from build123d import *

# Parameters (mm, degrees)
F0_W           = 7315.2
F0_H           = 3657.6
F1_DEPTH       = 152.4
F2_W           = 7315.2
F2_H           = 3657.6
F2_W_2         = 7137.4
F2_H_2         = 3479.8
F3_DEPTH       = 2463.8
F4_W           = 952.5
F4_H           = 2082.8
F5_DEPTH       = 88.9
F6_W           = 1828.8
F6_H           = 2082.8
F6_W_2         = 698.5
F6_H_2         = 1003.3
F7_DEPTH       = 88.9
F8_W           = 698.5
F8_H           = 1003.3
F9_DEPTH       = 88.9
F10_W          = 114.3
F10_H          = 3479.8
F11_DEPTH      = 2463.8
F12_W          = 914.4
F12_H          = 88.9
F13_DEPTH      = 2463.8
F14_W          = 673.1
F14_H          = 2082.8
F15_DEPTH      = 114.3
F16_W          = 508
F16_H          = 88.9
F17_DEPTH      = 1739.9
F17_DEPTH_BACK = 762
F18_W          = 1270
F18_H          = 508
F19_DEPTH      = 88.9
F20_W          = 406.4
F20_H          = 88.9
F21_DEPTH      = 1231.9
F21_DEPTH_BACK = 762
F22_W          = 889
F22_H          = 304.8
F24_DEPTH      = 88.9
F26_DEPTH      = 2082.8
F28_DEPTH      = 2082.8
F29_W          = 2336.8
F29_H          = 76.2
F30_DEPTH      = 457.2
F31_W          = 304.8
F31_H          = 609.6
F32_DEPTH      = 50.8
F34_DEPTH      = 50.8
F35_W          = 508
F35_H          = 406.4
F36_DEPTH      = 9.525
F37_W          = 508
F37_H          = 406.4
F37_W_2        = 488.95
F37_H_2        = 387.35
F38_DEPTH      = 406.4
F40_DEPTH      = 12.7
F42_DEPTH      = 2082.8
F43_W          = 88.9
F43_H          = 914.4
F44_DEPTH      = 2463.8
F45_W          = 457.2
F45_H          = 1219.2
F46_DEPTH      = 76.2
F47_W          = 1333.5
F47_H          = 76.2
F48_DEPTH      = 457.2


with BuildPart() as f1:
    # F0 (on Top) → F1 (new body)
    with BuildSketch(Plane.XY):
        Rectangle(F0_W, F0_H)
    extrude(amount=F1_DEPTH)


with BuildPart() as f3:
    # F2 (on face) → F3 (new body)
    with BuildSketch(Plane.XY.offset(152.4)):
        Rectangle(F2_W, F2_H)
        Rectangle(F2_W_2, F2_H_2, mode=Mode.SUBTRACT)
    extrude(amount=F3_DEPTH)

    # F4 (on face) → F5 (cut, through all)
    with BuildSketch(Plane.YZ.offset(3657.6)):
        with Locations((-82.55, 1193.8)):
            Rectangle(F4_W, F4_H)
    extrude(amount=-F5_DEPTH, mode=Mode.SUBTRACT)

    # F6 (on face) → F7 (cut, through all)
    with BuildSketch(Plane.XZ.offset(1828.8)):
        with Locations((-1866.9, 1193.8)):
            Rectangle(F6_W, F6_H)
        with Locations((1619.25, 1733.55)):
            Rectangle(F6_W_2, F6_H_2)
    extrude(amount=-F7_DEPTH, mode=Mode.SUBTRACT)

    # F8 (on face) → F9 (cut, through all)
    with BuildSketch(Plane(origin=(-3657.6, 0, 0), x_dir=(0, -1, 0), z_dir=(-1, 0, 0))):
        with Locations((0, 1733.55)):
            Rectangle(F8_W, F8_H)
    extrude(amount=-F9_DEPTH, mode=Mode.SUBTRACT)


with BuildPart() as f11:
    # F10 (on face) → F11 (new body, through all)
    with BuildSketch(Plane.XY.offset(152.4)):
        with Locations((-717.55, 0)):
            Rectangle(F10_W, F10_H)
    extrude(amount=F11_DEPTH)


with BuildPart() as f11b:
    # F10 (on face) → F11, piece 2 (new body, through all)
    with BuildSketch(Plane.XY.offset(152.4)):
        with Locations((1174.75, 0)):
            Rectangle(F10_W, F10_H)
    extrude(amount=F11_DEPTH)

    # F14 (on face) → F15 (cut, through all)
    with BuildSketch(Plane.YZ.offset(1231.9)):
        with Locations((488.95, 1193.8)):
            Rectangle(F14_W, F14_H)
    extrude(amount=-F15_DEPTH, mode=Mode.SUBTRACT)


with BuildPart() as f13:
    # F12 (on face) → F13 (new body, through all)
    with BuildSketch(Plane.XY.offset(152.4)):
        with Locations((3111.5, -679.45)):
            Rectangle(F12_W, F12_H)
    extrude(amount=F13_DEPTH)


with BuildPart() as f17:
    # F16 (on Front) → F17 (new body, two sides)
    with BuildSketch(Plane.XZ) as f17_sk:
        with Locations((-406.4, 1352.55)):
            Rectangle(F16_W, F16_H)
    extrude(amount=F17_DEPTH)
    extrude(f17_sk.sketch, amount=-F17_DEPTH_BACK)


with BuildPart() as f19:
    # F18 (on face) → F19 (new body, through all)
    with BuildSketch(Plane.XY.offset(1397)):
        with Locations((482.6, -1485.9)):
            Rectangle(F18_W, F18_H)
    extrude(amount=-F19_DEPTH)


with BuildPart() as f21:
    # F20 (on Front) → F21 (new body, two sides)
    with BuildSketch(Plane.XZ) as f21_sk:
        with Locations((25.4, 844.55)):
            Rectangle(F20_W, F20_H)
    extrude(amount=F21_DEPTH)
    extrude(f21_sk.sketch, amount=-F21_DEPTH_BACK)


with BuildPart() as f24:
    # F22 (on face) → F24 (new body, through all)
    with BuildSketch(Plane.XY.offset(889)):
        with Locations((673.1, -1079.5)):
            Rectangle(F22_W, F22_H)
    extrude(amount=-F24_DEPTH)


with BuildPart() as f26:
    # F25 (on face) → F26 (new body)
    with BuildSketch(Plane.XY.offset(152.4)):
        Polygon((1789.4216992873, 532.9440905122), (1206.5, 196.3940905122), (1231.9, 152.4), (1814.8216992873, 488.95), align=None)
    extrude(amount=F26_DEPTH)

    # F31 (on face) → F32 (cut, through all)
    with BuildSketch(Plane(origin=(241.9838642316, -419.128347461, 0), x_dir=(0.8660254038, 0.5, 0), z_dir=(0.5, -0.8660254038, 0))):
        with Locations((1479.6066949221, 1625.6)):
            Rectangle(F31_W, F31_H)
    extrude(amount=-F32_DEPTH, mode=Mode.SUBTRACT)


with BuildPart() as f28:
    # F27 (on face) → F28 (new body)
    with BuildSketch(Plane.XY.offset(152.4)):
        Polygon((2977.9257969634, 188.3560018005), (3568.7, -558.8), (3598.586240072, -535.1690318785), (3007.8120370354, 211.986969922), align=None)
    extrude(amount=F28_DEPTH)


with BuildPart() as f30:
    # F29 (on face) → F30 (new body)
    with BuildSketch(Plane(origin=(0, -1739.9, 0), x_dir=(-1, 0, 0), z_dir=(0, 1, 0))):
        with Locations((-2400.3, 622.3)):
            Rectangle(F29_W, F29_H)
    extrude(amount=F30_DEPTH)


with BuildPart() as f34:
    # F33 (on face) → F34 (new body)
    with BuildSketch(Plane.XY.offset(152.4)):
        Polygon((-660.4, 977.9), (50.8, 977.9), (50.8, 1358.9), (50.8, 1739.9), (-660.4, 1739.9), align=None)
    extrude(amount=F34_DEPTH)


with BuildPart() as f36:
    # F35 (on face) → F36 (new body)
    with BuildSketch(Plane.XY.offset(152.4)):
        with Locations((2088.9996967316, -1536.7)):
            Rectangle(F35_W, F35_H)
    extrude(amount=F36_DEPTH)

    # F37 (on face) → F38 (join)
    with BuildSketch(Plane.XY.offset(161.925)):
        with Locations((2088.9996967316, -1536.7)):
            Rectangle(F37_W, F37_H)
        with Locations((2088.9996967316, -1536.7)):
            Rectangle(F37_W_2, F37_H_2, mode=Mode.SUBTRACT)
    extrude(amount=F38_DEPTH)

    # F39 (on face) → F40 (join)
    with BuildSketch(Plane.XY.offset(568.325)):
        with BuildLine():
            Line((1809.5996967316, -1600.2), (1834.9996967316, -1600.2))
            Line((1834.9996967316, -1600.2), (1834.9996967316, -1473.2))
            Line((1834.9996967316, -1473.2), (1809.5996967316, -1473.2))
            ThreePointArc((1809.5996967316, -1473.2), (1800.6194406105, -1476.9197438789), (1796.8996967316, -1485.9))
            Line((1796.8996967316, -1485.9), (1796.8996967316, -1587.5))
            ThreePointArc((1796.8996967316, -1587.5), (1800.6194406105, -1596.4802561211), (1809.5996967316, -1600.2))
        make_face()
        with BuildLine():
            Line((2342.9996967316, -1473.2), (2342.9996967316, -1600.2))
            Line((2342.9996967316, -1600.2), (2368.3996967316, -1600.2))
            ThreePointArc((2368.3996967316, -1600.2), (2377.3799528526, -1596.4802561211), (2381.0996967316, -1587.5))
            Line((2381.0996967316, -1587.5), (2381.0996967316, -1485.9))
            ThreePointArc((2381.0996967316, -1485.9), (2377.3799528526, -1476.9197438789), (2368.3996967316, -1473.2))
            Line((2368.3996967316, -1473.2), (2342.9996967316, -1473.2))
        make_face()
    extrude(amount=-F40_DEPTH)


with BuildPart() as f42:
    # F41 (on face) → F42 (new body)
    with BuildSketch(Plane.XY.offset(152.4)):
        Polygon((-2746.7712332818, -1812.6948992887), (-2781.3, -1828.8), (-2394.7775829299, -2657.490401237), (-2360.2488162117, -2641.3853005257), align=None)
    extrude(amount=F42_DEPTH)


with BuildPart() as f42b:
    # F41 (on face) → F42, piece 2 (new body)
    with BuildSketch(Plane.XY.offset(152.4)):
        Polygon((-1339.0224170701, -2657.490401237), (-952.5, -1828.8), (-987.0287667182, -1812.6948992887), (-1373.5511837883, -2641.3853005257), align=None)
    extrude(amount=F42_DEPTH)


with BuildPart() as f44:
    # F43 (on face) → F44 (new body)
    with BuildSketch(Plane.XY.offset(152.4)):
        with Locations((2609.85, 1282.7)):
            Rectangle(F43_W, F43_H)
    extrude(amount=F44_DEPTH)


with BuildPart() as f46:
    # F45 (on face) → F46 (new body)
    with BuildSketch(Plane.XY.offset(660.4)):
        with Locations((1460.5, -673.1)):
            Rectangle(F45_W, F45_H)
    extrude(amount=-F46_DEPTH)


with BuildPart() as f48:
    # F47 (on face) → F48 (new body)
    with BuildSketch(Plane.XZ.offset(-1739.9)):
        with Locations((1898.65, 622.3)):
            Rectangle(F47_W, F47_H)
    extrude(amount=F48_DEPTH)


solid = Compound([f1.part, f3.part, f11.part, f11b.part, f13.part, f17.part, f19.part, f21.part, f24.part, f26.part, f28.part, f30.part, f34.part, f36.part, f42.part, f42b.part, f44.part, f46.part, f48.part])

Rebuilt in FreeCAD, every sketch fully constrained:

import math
import FreeCAD as App
import Part
import Sketcher

V = App.Vector
Q = App.Units.Quantity


def add_polygon(sketch, points):
    """Adds a closed chain of lines whose ends are joined by coincident constraints."""
    first, n = sketch.GeometryCount, len(points)
    for a, b in zip(points, points[1:] + points[:1]):
        sketch.addGeometry(Part.LineSegment(App.Vector(*a, 0), App.Vector(*b, 0)), False)
    for i in range(n):
        sketch.addConstraint(Sketcher.Constraint("Coincident", first + i, 2, first + (i + 1) % n, 1))

doc = App.newDocument("Part")
body = doc.addObject("PartDesign::Body", "Body")

sketch1 = body.newObject("Sketcher::SketchObject", "Sketch")
sketch1.AttachmentSupport = (doc.getObject("XY_Plane"), [""])
sketch1.MapMode = "FlatFace"
add_polygon(sketch1, [(-3658, 1829), (-3658, -1829), (3658, -1829), (3658, 1829)])
sketch1.addConstraint(Sketcher.Constraint("Vertical", 0))
sketch1.addConstraint(Sketcher.Constraint("Horizontal", 1))
sketch1.addConstraint(Sketcher.Constraint("Vertical", 2))
sketch1.addConstraint(Sketcher.Constraint("Horizontal", 3))
sketch1.addConstraint(Sketcher.Constraint("Symmetric", 0, 2, 2, 2, -1, 1))
sketch1.addConstraint(Sketcher.Constraint("DistanceX", 1, 1, 1, 2, Q("288 in")))
sketch1.addConstraint(Sketcher.Constraint("DistanceY", 0, 2, 0, 1, Q("144 in")))
pad1 = body.newObject("PartDesign::Pad", "Pad")
pad1.Profile = sketch1
pad1.Length = Q("6 in")
body2 = doc.addObject("PartDesign::Body", "Body001")

sketch2 = body2.newObject("Sketcher::SketchObject", "Sketch001")
sketch2.AttachmentSupport = (doc.getObject("XY_Plane001"), [""])
sketch2.MapMode = "FlatFace"
sketch2.AttachmentOffset = App.Placement(V(0, 0, 6 * 25.4), App.Rotation())
add_polygon(sketch2, [(-3658, 1829), (-3658, -1829), (3658, -1829), (3658, 1829)])
add_polygon(sketch2, [(3569, -1740), (-3569, -1740), (-3569, 1740), (3569, 1740)])
sketch2.addConstraint(Sketcher.Constraint("Vertical", 0))
sketch2.addConstraint(Sketcher.Constraint("Horizontal", 1))
sketch2.addConstraint(Sketcher.Constraint("Vertical", 2))
sketch2.addConstraint(Sketcher.Constraint("Horizontal", 3))
sketch2.addConstraint(Sketcher.Constraint("Horizontal", 4))
sketch2.addConstraint(Sketcher.Constraint("Vertical", 5))
sketch2.addConstraint(Sketcher.Constraint("Horizontal", 6))
sketch2.addConstraint(Sketcher.Constraint("Vertical", 7))
sketch2.addConstraint(Sketcher.Constraint("Symmetric", 0, 2, 2, 2, -1, 1))
sketch2.addConstraint(Sketcher.Constraint("Symmetric", 4, 2, 6, 2, -1, 1))
sketch2.addConstraint(Sketcher.Constraint("DistanceX", 1, 1, 1, 2, Q("288 in")))
sketch2.addConstraint(Sketcher.Constraint("DistanceX", 4, 2, 4, 1, Q("281 in")))
sketch2.addConstraint(Sketcher.Constraint("DistanceY", 0, 2, 0, 1, Q("144 in")))
sketch2.addConstraint(Sketcher.Constraint("DistanceY", 5, 1, 5, 2, Q("137 in")))
pad2 = body2.newObject("PartDesign::Pad", "Pad001")
pad2.Profile = sketch2
pad2.Length = Q("97 in")

sketch3 = body2.newObject("Sketcher::SketchObject", "Sketch002")
sketch3.AttachmentSupport = (doc.getObject("YZ_Plane001"), [""])
sketch3.MapMode = "FlatFace"
sketch3.AttachmentOffset = App.Placement(V(0, 0, 144 * 25.4), App.Rotation())
add_polygon(sketch3, [(-559, 2235), (-559, 152), (394, 152), (394, 2235)])
sketch3.addConstraint(Sketcher.Constraint("Vertical", 0))
sketch3.addConstraint(Sketcher.Constraint("Horizontal", 1))
sketch3.addConstraint(Sketcher.Constraint("Vertical", 2))
sketch3.addConstraint(Sketcher.Constraint("Horizontal", 3))
sketch3.addConstraint(Sketcher.Constraint("DistanceY", 0, 2, 0, 1, Q("82 in")))
sketch3.addConstraint(Sketcher.Constraint("DistanceX", 1, 1, 1, 2, Q("37.5 in")))
sketch3.addConstraint(Sketcher.Constraint("DistanceX", 0, 2, -1, 1, Q("22 in")))
sketch3.addConstraint(Sketcher.Constraint("DistanceY", -1, 1, 0, 2, Q("6 in")))
pocket1 = body2.newObject("PartDesign::Pocket", "Pocket")
pocket1.Profile = sketch3
pocket1.Length = Q("3.5 in")

sketch4 = body2.newObject("Sketcher::SketchObject", "Sketch003")
sketch4.AttachmentSupport = (doc.getObject("XZ_Plane001"), [""])
sketch4.MapMode = "FlatFace"
sketch4.AttachmentOffset = App.Placement(V(0, 0, 72 * 25.4), App.Rotation())
add_polygon(sketch4, [(-2781, 2235), (-2781, 152), (-952, 152), (-952, 2235)])
add_polygon(sketch4, [(1270, 2235), (1270, 1232), (1968, 1232), (1968, 2235)])
sketch4.addConstraint(Sketcher.Constraint("Vertical", 0))
sketch4.addConstraint(Sketcher.Constraint("Horizontal", 1))
sketch4.addConstraint(Sketcher.Constraint("Vertical", 2))
sketch4.addConstraint(Sketcher.Constraint("Horizontal", 3))
sketch4.addConstraint(Sketcher.Constraint("Vertical", 4))
sketch4.addConstraint(Sketcher.Constraint("Horizontal", 5))
sketch4.addConstraint(Sketcher.Constraint("Vertical", 6))
sketch4.addConstraint(Sketcher.Constraint("Horizontal", 7))
sketch4.addConstraint(Sketcher.Constraint("Horizontal", 3, 2, 6, 2))
sketch4.addConstraint(Sketcher.Constraint("DistanceX", 1, 1, 1, 2, Q("72 in")))
sketch4.addConstraint(Sketcher.Constraint("DistanceY", 0, 2, 0, 1, Q("82 in")))
sketch4.addConstraint(Sketcher.Constraint("DistanceX", 5, 1, 5, 2, Q("27.5 in")))
sketch4.addConstraint(Sketcher.Constraint("DistanceY", 4, 2, 4, 1, Q("39.5 in")))
sketch4.addConstraint(Sketcher.Constraint("DistanceY", -1, 1, 0, 2, Q("6 in")))
sketch4.addConstraint(Sketcher.Constraint("DistanceX", -1, 1, 4, 2, Q("50 in")))
sketch4.addConstraint(Sketcher.Constraint("DistanceX", 2, 2, 5, 2, Q("115 in")))
pocket2 = body2.newObject("PartDesign::Pocket", "Pocket001")
pocket2.Profile = sketch4
pocket2.Length = Q("3.5 in")

sketch5 = body2.newObject("Sketcher::SketchObject", "Sketch004")
sketch5.AttachmentSupport = (doc.getObject("YZ_Plane001"), [""])
sketch5.MapMode = "FlatFace"
sketch5.AttachmentOffset = App.Placement(V(0, 0, -144 * 25.4), App.Rotation())
add_polygon(sketch5, [(349, 2235), (349, 1232), (-349, 1232), (-349, 2235)])
sketch5.addConstraint(Sketcher.Constraint("Vertical", 0))
sketch5.addConstraint(Sketcher.Constraint("Horizontal", 1))
sketch5.addConstraint(Sketcher.Constraint("Vertical", 2))
sketch5.addConstraint(Sketcher.Constraint("Horizontal", 3))
sketch5.addConstraint(Sketcher.Constraint("DistanceX", 1, 2, 1, 1, Q("27.5 in")))
sketch5.addConstraint(Sketcher.Constraint("DistanceY", 0, 2, 0, 1, Q("39.5 in")))
sketch5.addConstraint(Sketcher.Constraint("DistanceY", -1, 1, 2, 2, Q("88 in")))
sketch5.addConstraint(Sketcher.Constraint("DistanceX", -1, 1, 0, 2, Q("13.75 in")))
pocket3 = body2.newObject("PartDesign::Pocket", "Pocket002")
pocket3.Profile = sketch5
pocket3.Type = "ThroughAll"
pocket3.Reversed = True
body3 = doc.addObject("PartDesign::Body", "Body002")

sketch6 = body3.newObject("Sketcher::SketchObject", "Sketch005")
sketch6.AttachmentSupport = (doc.getObject("XY_Plane002"), [""])
sketch6.MapMode = "FlatFace"
sketch6.AttachmentOffset = App.Placement(V(0, 0, 6 * 25.4), App.Rotation())
add_polygon(sketch6, [(-775, 1740), (-775, -1740), (-660, -1740), (-660, 1740)])
sketch6.addConstraint(Sketcher.Constraint("Vertical", 0))
sketch6.addConstraint(Sketcher.Constraint("Horizontal", 1))
sketch6.addConstraint(Sketcher.Constraint("Vertical", 2))
sketch6.addConstraint(Sketcher.Constraint("Horizontal", 3))
sketch6.addConstraint(Sketcher.Constraint("DistanceY", 0, 2, 0, 1, Q("137 in")))
sketch6.addConstraint(Sketcher.Constraint("DistanceX", 1, 1, 1, 2, Q("4.5 in")))
sketch6.addConstraint(Sketcher.Constraint("DistanceX", 1, 2, -1, 1, Q("26 in")))
sketch6.addConstraint(Sketcher.Constraint("DistanceY", 0, 2, -1, 1, Q("68.5 in")))
pad3 = body3.newObject("PartDesign::Pad", "Pad002")
pad3.Profile = sketch6
pad3.Length = Q("97 in")
body4 = doc.addObject("PartDesign::Body", "Body003")

sketch7 = body4.newObject("Sketcher::SketchObject", "Sketch006")
sketch7.AttachmentSupport = (doc.getObject("XY_Plane003"), [""])
sketch7.MapMode = "FlatFace"
sketch7.AttachmentOffset = App.Placement(V(0, 0, 6 * 25.4), App.Rotation())
add_polygon(sketch7, [(1118, 1740), (1118, -1740), (1232, -1740), (1232, 1740)])
sketch7.addConstraint(Sketcher.Constraint("Vertical", 0))
sketch7.addConstraint(Sketcher.Constraint("Horizontal", 1))
sketch7.addConstraint(Sketcher.Constraint("Vertical", 2))
sketch7.addConstraint(Sketcher.Constraint("Horizontal", 3))
sketch7.addConstraint(Sketcher.Constraint("DistanceY", 0, 2, 0, 1, Q("137 in")))
sketch7.addConstraint(Sketcher.Constraint("DistanceX", 1, 1, 1, 2, Q("4.5 in")))
sketch7.addConstraint(Sketcher.Constraint("DistanceX", -1, 1, 0, 2, Q("44 in")))
sketch7.addConstraint(Sketcher.Constraint("DistanceY", 0, 2, -1, 1, Q("68.5 in")))
pad4 = body4.newObject("PartDesign::Pad", "Pad003")
pad4.Profile = sketch7
pad4.Length = Q("97 in")

sketch8 = body4.newObject("Sketcher::SketchObject", "Sketch007")
sketch8.AttachmentSupport = (doc.getObject("YZ_Plane003"), [""])
sketch8.MapMode = "FlatFace"
sketch8.AttachmentOffset = App.Placement(V(0, 0, 48.5 * 25.4), App.Rotation())
add_polygon(sketch8, [(152, 2235), (152, 152), (826, 152), (826, 2235)])
sketch8.addConstraint(Sketcher.Constraint("Vertical", 0))
sketch8.addConstraint(Sketcher.Constraint("Horizontal", 1))
sketch8.addConstraint(Sketcher.Constraint("Vertical", 2))
sketch8.addConstraint(Sketcher.Constraint("Horizontal", 3))
sketch8.addConstraint(Sketcher.Constraint("DistanceY", 0, 2, 0, 1, Q("82 in")))
sketch8.addConstraint(Sketcher.Constraint("DistanceX", 1, 1, 1, 2, Q("26.5 in")))
sketch8.addConstraint(Sketcher.Constraint("DistanceX", -1, 1, 0, 2, Q("6 in")))
sketch8.addConstraint(Sketcher.Constraint("DistanceY", -1, 1, 0, 2, Q("6 in")))
pocket4 = body4.newObject("PartDesign::Pocket", "Pocket003")
pocket4.Profile = sketch8
pocket4.Type = "ThroughAll"
body5 = doc.addObject("PartDesign::Body", "Body004")

sketch9 = body5.newObject("Sketcher::SketchObject", "Sketch008")
sketch9.AttachmentSupport = (doc.getObject("XY_Plane004"), [""])
sketch9.MapMode = "FlatFace"
sketch9.AttachmentOffset = App.Placement(V(0, 0, 6 * 25.4), App.Rotation())
add_polygon(sketch9, [(2654, -635), (2654, -724), (3569, -724), (3569, -635)])
sketch9.addConstraint(Sketcher.Constraint("Vertical", 0))
sketch9.addConstraint(Sketcher.Constraint("Horizontal", 1))
sketch9.addConstraint(Sketcher.Constraint("Vertical", 2))
sketch9.addConstraint(Sketcher.Constraint("Horizontal", 3))
sketch9.addConstraint(Sketcher.Constraint("DistanceX", 1, 1, 1, 2, Q("36 in")))
sketch9.addConstraint(Sketcher.Constraint("DistanceY", 0, 2, 0, 1, Q("3.5 in")))
sketch9.addConstraint(Sketcher.Constraint("DistanceY", 2, 2, -1, 1, Q("25 in")))
sketch9.addConstraint(Sketcher.Constraint("DistanceX", -1, 1, 0, 2, Q("104.5 in")))
pad5 = body5.newObject("PartDesign::Pad", "Pad004")
pad5.Profile = sketch9
pad5.Length = Q("97 in")
body6 = doc.addObject("PartDesign::Body", "Body005")

sketch10 = body6.newObject("Sketcher::SketchObject", "Sketch009")
sketch10.AttachmentSupport = (doc.getObject("XZ_Plane005"), [""])
sketch10.MapMode = "FlatFace"
add_polygon(sketch10, [(-660, 1397), (-660, 1308), (-152, 1308), (-152, 1397)])
sketch10.addConstraint(Sketcher.Constraint("Vertical", 0))
sketch10.addConstraint(Sketcher.Constraint("Horizontal", 1))
sketch10.addConstraint(Sketcher.Constraint("Vertical", 2))
sketch10.addConstraint(Sketcher.Constraint("Horizontal", 3))
sketch10.addConstraint(Sketcher.Constraint("DistanceX", 1, 1, 1, 2, Q("20 in")))
sketch10.addConstraint(Sketcher.Constraint("DistanceY", 0, 2, 0, 1, Q("3.5 in")))
sketch10.addConstraint(Sketcher.Constraint("DistanceX", 0, 2, -1, 1, Q("26 in")))
sketch10.addConstraint(Sketcher.Constraint("DistanceY", -1, 1, 2, 2, Q("55 in")))
pad6 = body6.newObject("PartDesign::Pad", "Pad005")
pad6.Profile = sketch10
pad6.Type = "TwoLengths"
pad6.Length = Q("68.5 in")
pad6.Length2 = Q("30 in")
body7 = doc.addObject("PartDesign::Body", "Body006")

sketch11 = body7.newObject("Sketcher::SketchObject", "Sketch010")
sketch11.AttachmentSupport = (doc.getObject("XY_Plane006"), [""])
sketch11.MapMode = "FlatFace"
sketch11.AttachmentOffset = App.Placement(V(0, 0, 55 * 25.4), App.Rotation())
add_polygon(sketch11, [(-152, -1232), (-152, -1740), (1118, -1740), (1118, -1232)])
sketch11.addConstraint(Sketcher.Constraint("Vertical", 0))
sketch11.addConstraint(Sketcher.Constraint("Horizontal", 1))
sketch11.addConstraint(Sketcher.Constraint("Vertical", 2))
sketch11.addConstraint(Sketcher.Constraint("Horizontal", 3))
sketch11.addConstraint(Sketcher.Constraint("DistanceX", 1, 1, 1, 2, Q("50 in")))
sketch11.addConstraint(Sketcher.Constraint("DistanceY", 0, 2, 0, 1, Q("20 in")))
sketch11.addConstraint(Sketcher.Constraint("DistanceX", 0, 2, -1, 1, Q("6 in")))
sketch11.addConstraint(Sketcher.Constraint("DistanceY", 0, 2, -1, 1, Q("68.5 in")))
pad7 = body7.newObject("PartDesign::Pad", "Pad006")
pad7.Profile = sketch11
pad7.Length = Q("3.5 in")
pad7.Reversed = True
body8 = doc.addObject("PartDesign::Body", "Body007")

sketch12 = body8.newObject("Sketcher::SketchObject", "Sketch011")
sketch12.AttachmentSupport = (doc.getObject("XZ_Plane007"), [""])
sketch12.MapMode = "FlatFace"
add_polygon(sketch12, [(-178, 889), (-178, 800), (229, 800), (229, 889)])
sketch12.addConstraint(Sketcher.Constraint("Vertical", 0))
sketch12.addConstraint(Sketcher.Constraint("Horizontal", 1))
sketch12.addConstraint(Sketcher.Constraint("Vertical", 2))
sketch12.addConstraint(Sketcher.Constraint("Horizontal", 3))
sketch12.addConstraint(Sketcher.Constraint("DistanceX", 1, 1, 1, 2, Q("16 in")))
sketch12.addConstraint(Sketcher.Constraint("DistanceY", 0, 2, 0, 1, Q("3.5 in")))
sketch12.addConstraint(Sketcher.Constraint("DistanceX", 0, 2, -1, 1, Q("7 in")))
sketch12.addConstraint(Sketcher.Constraint("DistanceY", -1, 1, 2, 2, Q("35 in")))
pad8 = body8.newObject("PartDesign::Pad", "Pad007")
pad8.Profile = sketch12
pad8.Type = "TwoLengths"
pad8.Length = Q("48.5 in")
pad8.Length2 = Q("30 in")
body9 = doc.addObject("PartDesign::Body", "Body008")

sketch13 = body9.newObject("Sketcher::SketchObject", "Sketch012")
sketch13.AttachmentSupport = (doc.getObject("XY_Plane008"), [""])
sketch13.MapMode = "FlatFace"
sketch13.AttachmentOffset = App.Placement(V(0, 0, 35 * 25.4), App.Rotation())
add_polygon(sketch13, [(229, -927), (229, -1232), (1118, -1232), (1118, -927)])
sketch13.addConstraint(Sketcher.Constraint("Vertical", 0))
sketch13.addConstraint(Sketcher.Constraint("Horizontal", 1))
sketch13.addConstraint(Sketcher.Constraint("Vertical", 2))
sketch13.addConstraint(Sketcher.Constraint("Horizontal", 3))
sketch13.addConstraint(Sketcher.Constraint("DistanceX", 1, 1, 1, 2, Q("35 in")))
sketch13.addConstraint(Sketcher.Constraint("DistanceY", 0, 2, 0, 1, Q("12 in")))
sketch13.addConstraint(Sketcher.Constraint("DistanceX", -1, 1, 0, 2, Q("9 in")))
sketch13.addConstraint(Sketcher.Constraint("DistanceY", 0, 2, -1, 1, Q("48.5 in")))
pad9 = body9.newObject("PartDesign::Pad", "Pad008")
pad9.Profile = sketch13
pad9.Length = Q("3.5 in")
pad9.Reversed = True
body10 = doc.addObject("PartDesign::Body", "Body009")

sketch14 = body10.newObject("Sketcher::SketchObject", "Sketch013")
sketch14.AttachmentSupport = (doc.getObject("XY_Plane009"), [""])
sketch14.MapMode = "FlatFace"
sketch14.AttachmentOffset = App.Placement(V(0, 0, 6 * 25.4), App.Rotation())
add_polygon(sketch14, [(1789, 533), (1206, 196), (1232, 152), (1815, 489)])
sketch14.addConstraint(Sketcher.Constraint("Perpendicular", 0, 1))
sketch14.addConstraint(Sketcher.Constraint("Perpendicular", 1, 2))
sketch14.addConstraint(Sketcher.Constraint("Perpendicular", 2, 3))
sketch14.addConstraint(Sketcher.Constraint("Distance", 1, Q("2 in")))
sketch14.addConstraint(Sketcher.Constraint("DistanceY", -1, 1, 1, 2, Q("6 in")))
sketch14.addConstraint(Sketcher.Constraint("Angle", 0, Q("-150 deg")))
sketch14.addConstraint(Sketcher.Constraint("Distance", 0, Q("26.5 in")))
sketch14.addConstraint(Sketcher.Constraint("DistanceX", -1, 1, 0, 2, Q("47.5 in")))
pad10 = body10.newObject("PartDesign::Pad", "Pad009")
pad10.Profile = sketch14
pad10.Length = Q("82 in")

sketch15 = body10.newObject("Sketcher::SketchObject", "Sketch014")
sketch15.Placement = App.Placement(V(241.983864, -419.128347, 0), App.Rotation(V(0.866025404, 0.5, 0), V(0, 0, 1), V(0.5, -0.866025404, 0), "ZXY"))
add_polygon(sketch15, [(1327, 1930), (1327, 1321), (1632, 1321), (1632, 1930)])
sketch15.addConstraint(Sketcher.Constraint("Vertical", 0))
sketch15.addConstraint(Sketcher.Constraint("Horizontal", 1))
sketch15.addConstraint(Sketcher.Constraint("Vertical", 2))
sketch15.addConstraint(Sketcher.Constraint("Horizontal", 3))
sketch15.addConstraint(Sketcher.Constraint("DistanceX", 1, 1, 1, 2, Q("12 in")))
sketch15.addConstraint(Sketcher.Constraint("DistanceY", 0, 2, 0, 1, Q("24 in")))
sketch15.addConstraint(Sketcher.Constraint("DistanceY", -1, 1, 0, 2, Q("52 in")))
sketch15.addConstraint(Sketcher.Constraint("DistanceX", -1, 1, 0, 2, Q("1327.206695 mm")))
pocket5 = body10.newObject("PartDesign::Pocket", "Pocket004")
pocket5.Profile = sketch15
pocket5.Type = "ThroughAll"
body11 = doc.addObject("PartDesign::Body", "Body010")

sketch16 = body11.newObject("Sketcher::SketchObject", "Sketch015")
sketch16.AttachmentSupport = (doc.getObject("XY_Plane010"), [""])
sketch16.MapMode = "FlatFace"
sketch16.AttachmentOffset = App.Placement(V(0, 0, 6 * 25.4), App.Rotation())
add_polygon(sketch16, [(2978, 188), (3569, -559), (3599, -535), (3008, 212)])
sketch16.addConstraint(Sketcher.Constraint("Perpendicular", 0, 1))
sketch16.addConstraint(Sketcher.Constraint("Perpendicular", 1, 2))
sketch16.addConstraint(Sketcher.Constraint("Perpendicular", 2, 3))
sketch16.addConstraint(Sketcher.Constraint("DistanceY", 0, 2, -1, 1, Q("22 in")))
sketch16.addConstraint(Sketcher.Constraint("Distance", 0, Q("37.5 in")))
sketch16.addConstraint(Sketcher.Constraint("Distance", 1, Q("1.5 in")))
sketch16.addConstraint(Sketcher.Constraint("DistanceX", -1, 1, 0, 2, Q("140.5 in")))
sketch16.addConstraint(Sketcher.Constraint("DistanceY", -1, 1, 3, 2, Q("188.356002 mm")))
pad11 = body11.newObject("PartDesign::Pad", "Pad010")
pad11.Profile = sketch16
pad11.Length = Q("82 in")
body12 = doc.addObject("PartDesign::Body", "Body011")

sketch17 = body12.newObject("Sketcher::SketchObject", "Sketch016")
sketch17.AttachmentSupport = (doc.getObject("XZ_Plane011"), [""])
sketch17.MapMode = "FlatFace"
sketch17.AttachmentOffset = App.Placement(V(0, 0, 68.5 * 25.4), App.Rotation())
add_polygon(sketch17, [(3569, 660), (3569, 584), (1232, 584), (1232, 660)])
sketch17.addConstraint(Sketcher.Constraint("Vertical", 0))
sketch17.addConstraint(Sketcher.Constraint("Horizontal", 1))
sketch17.addConstraint(Sketcher.Constraint("Vertical", 2))
sketch17.addConstraint(Sketcher.Constraint("Horizontal", 3))
sketch17.addConstraint(Sketcher.Constraint("DistanceX", 1, 2, 1, 1, Q("92 in")))
sketch17.addConstraint(Sketcher.Constraint("DistanceY", 0, 2, 0, 1, Q("3 in")))
sketch17.addConstraint(Sketcher.Constraint("DistanceY", -1, 1, 0, 2, Q("23 in")))
sketch17.addConstraint(Sketcher.Constraint("DistanceX", -1, 1, 0, 2, Q("140.5 in")))
pad12 = body12.newObject("PartDesign::Pad", "Pad011")
pad12.Profile = sketch17
pad12.Length = Q("18 in")
pad12.Reversed = True
body13 = doc.addObject("PartDesign::Body", "Body012")

sketch18 = body13.newObject("Sketcher::SketchObject", "Sketch017")
sketch18.AttachmentSupport = (doc.getObject("XY_Plane012"), [""])
sketch18.MapMode = "FlatFace"
sketch18.AttachmentOffset = App.Placement(V(0, 0, 6 * 25.4), App.Rotation())
add_polygon(sketch18, [(-660, 978), (51, 978), (51, 1740), (-660, 1740)])
sketch18.addConstraint(Sketcher.Constraint("Horizontal", 0))
sketch18.addConstraint(Sketcher.Constraint("Vertical", 1))
sketch18.addConstraint(Sketcher.Constraint("Horizontal", 2))
sketch18.addConstraint(Sketcher.Constraint("Vertical", 3))
sketch18.addConstraint(Sketcher.Constraint("DistanceX", 0, 1, 0, 2, Q("28 in")))
sketch18.addConstraint(Sketcher.Constraint("DistanceY", 1, 1, 1, 2, Q("30 in")))
sketch18.addConstraint(Sketcher.Constraint("DistanceX", -1, 1, 0, 2, Q("2 in")))
sketch18.addConstraint(Sketcher.Constraint("DistanceY", -1, 1, 0, 2, Q("38.5 in")))
pad13 = body13.newObject("PartDesign::Pad", "Pad012")
pad13.Profile = sketch18
pad13.Length = Q("2 in")
body14 = doc.addObject("PartDesign::Body", "Body013")

sketch19 = body14.newObject("Sketcher::SketchObject", "Sketch018")
sketch19.AttachmentSupport = (doc.getObject("XY_Plane013"), [""])
sketch19.MapMode = "FlatFace"
sketch19.AttachmentOffset = App.Placement(V(0, 0, 6 * 25.4), App.Rotation())
add_polygon(sketch19, [(1834.999697, -1333.5), (1834.999697, -1739.9), (2342.999697, -1739.9), (2342.999697, -1333.5)])
sketch19.addConstraint(Sketcher.Constraint("Vertical", 0))
sketch19.addConstraint(Sketcher.Constraint("Horizontal", 1))
sketch19.addConstraint(Sketcher.Constraint("Vertical", 2))
sketch19.addConstraint(Sketcher.Constraint("Horizontal", 3))
sketch19.addConstraint(Sketcher.Constraint("DistanceX", 1, 1, 1, 2, Q("20 in")))
sketch19.addConstraint(Sketcher.Constraint("DistanceY", 0, 2, 0, 1, Q("16 in")))
sketch19.addConstraint(Sketcher.Constraint("DistanceY", 0, 2, -1, 1, Q("68.5 in")))
sketch19.addConstraint(Sketcher.Constraint("DistanceX", -1, 1, 0, 2, Q("1834.999697 mm")))
pad14 = body14.newObject("PartDesign::Pad", "Pad013")
pad14.Profile = sketch19
pad14.Length = Q("0.375 in")

sketch20 = body14.newObject("Sketcher::SketchObject", "Sketch019")
sketch20.AttachmentSupport = (doc.getObject("XY_Plane013"), [""])
sketch20.MapMode = "FlatFace"
sketch20.AttachmentOffset = App.Placement(V(0, 0, 6.375 * 25.4), App.Rotation())
add_polygon(sketch20, [(1835, -1334), (1835, -1740), (2343, -1740), (2343, -1334)])
add_polygon(sketch20, [(2333, -1730), (1845, -1730), (1845, -1343), (2333, -1343)])
sketch20.addConstraint(Sketcher.Constraint("Vertical", 0))
sketch20.addConstraint(Sketcher.Constraint("Horizontal", 1))
sketch20.addConstraint(Sketcher.Constraint("Vertical", 2))
sketch20.addConstraint(Sketcher.Constraint("Horizontal", 3))
sketch20.addConstraint(Sketcher.Constraint("Horizontal", 4))
sketch20.addConstraint(Sketcher.Constraint("Vertical", 5))
sketch20.addConstraint(Sketcher.Constraint("Horizontal", 6))
sketch20.addConstraint(Sketcher.Constraint("Vertical", 7))
sketch20.addConstraint(Sketcher.Constraint("DistanceX", 1, 1, 1, 2, Q("20 in")))
sketch20.addConstraint(Sketcher.Constraint("DistanceY", 0, 2, 0, 1, Q("16 in")))
sketch20.addConstraint(Sketcher.Constraint("DistanceX", 4, 2, 4, 1, Q("19.25 in")))
sketch20.addConstraint(Sketcher.Constraint("DistanceY", 5, 1, 5, 2, Q("15.25 in")))
sketch20.addConstraint(Sketcher.Constraint("DistanceY", 0, 2, -1, 1, Q("68.5 in")))
sketch20.addConstraint(Sketcher.Constraint("DistanceY", 4, 2, -1, 1, Q("68.125 in")))
sketch20.addConstraint(Sketcher.Constraint("DistanceX", 0, 2, 4, 2, Q("0.375 in")))
sketch20.addConstraint(Sketcher.Constraint("DistanceX", -1, 1, 0, 2, Q("1834.999697 mm")))
pad15 = body14.newObject("PartDesign::Pad", "Pad014")
pad15.Profile = sketch20
pad15.Length = Q("16 in")

sketch21 = body14.newObject("Sketcher::SketchObject", "Sketch020")
sketch21.AttachmentSupport = (doc.getObject("XY_Plane013"), [""])
sketch21.MapMode = "FlatFace"
sketch21.AttachmentOffset = App.Placement(V(0, 0, 22.375 * 25.4), App.Rotation())
sketch21.addGeometry(Part.LineSegment(V(1810, -1600, 0), V(1835, -1600, 0)), False)
sketch21.addGeometry(Part.LineSegment(V(1835, -1600, 0), V(1835, -1473, 0)), False)
sketch21.addGeometry(Part.LineSegment(V(1835, -1473, 0), V(1810, -1473, 0)), False)
sketch21.addGeometry(Part.ArcOfCircle(Part.Circle(V(1810, -1486, 0), V(0, 0, 1), 13), math.radians(90), math.radians(180)), False)
sketch21.addGeometry(Part.LineSegment(V(1797, -1486, 0), V(1797, -1588, 0)), False)
sketch21.addGeometry(Part.ArcOfCircle(Part.Circle(V(1810, -1588, 0), V(0, 0, 1), 13), math.radians(180), math.radians(270)), False)
sketch21.addGeometry(Part.LineSegment(V(2343, -1473, 0), V(2343, -1600, 0)), False)
sketch21.addGeometry(Part.LineSegment(V(2343, -1600, 0), V(2368, -1600, 0)), False)
sketch21.addGeometry(Part.ArcOfCircle(Part.Circle(V(2368, -1588, 0), V(0, 0, 1), 13), math.radians(-90), math.radians(0)), False)
sketch21.addGeometry(Part.LineSegment(V(2381, -1588, 0), V(2381, -1486, 0)), False)
sketch21.addGeometry(Part.ArcOfCircle(Part.Circle(V(2368, -1486, 0), V(0, 0, 1), 13), math.radians(0), math.radians(90)), False)
sketch21.addGeometry(Part.LineSegment(V(2368, -1473, 0), V(2343, -1473, 0)), False)
sketch21.addConstraint(Sketcher.Constraint("Coincident", 0, 2, 1, 1))
sketch21.addConstraint(Sketcher.Constraint("Coincident", 1, 2, 2, 1))
sketch21.addConstraint(Sketcher.Constraint("Tangent", 2, 2, 3, 1))
sketch21.addConstraint(Sketcher.Constraint("Tangent", 3, 2, 4, 1))
sketch21.addConstraint(Sketcher.Constraint("Tangent", 4, 2, 5, 1))
sketch21.addConstraint(Sketcher.Constraint("Tangent", 5, 2, 0, 1))
sketch21.addConstraint(Sketcher.Constraint("Coincident", 6, 2, 7, 1))
sketch21.addConstraint(Sketcher.Constraint("Tangent", 7, 2, 8, 1))
sketch21.addConstraint(Sketcher.Constraint("Tangent", 8, 2, 9, 1))
sketch21.addConstraint(Sketcher.Constraint("Tangent", 9, 2, 10, 1))
sketch21.addConstraint(Sketcher.Constraint("Tangent", 10, 2, 11, 1))
sketch21.addConstraint(Sketcher.Constraint("Coincident", 11, 2, 6, 1))
sketch21.addConstraint(Sketcher.Constraint("Horizontal", 0))
sketch21.addConstraint(Sketcher.Constraint("Vertical", 1))
sketch21.addConstraint(Sketcher.Constraint("Horizontal", 2))
sketch21.addConstraint(Sketcher.Constraint("Vertical", 4))
sketch21.addConstraint(Sketcher.Constraint("Vertical", 6))
sketch21.addConstraint(Sketcher.Constraint("Horizontal", 7))
sketch21.addConstraint(Sketcher.Constraint("Vertical", 9))
sketch21.addConstraint(Sketcher.Constraint("Horizontal", 11))
sketch21.addConstraint(Sketcher.Constraint("Equal", 3, 5))
sketch21.addConstraint(Sketcher.Constraint("Equal", 5, 8))
sketch21.addConstraint(Sketcher.Constraint("Equal", 8, 10))
sketch21.addConstraint(Sketcher.Constraint("Horizontal", 5, 3, 8, 3))
sketch21.addConstraint(Sketcher.Constraint("Horizontal", 3, 3, 10, 3))
sketch21.addConstraint(Sketcher.Constraint("Equal", 2, 7))
sketch21.addConstraint(Sketcher.Constraint("Radius", 3, Q("0.5 in")))
sketch21.addConstraint(Sketcher.Constraint("DistanceX", 0, 1, 0, 2, Q("1 in")))
sketch21.addConstraint(Sketcher.Constraint("DistanceY", 1, 1, 1, 2, Q("5 in")))
sketch21.addConstraint(Sketcher.Constraint("DistanceY", 0, 2, -1, 1, Q("63 in")))
sketch21.addConstraint(Sketcher.Constraint("DistanceX", 5, 3, 8, 3, Q("22 in")))
sketch21.addConstraint(Sketcher.Constraint("DistanceX", -1, 1, 3, 3, Q("1809.599697 mm")))
pad16 = body14.newObject("PartDesign::Pad", "Pad015")
pad16.Profile = sketch21
pad16.Length = Q("0.5 in")
pad16.Reversed = True
body15 = doc.addObject("PartDesign::Body", "Body014")

sketch22 = body15.newObject("Sketcher::SketchObject", "Sketch021")
sketch22.AttachmentSupport = (doc.getObject("XY_Plane014"), [""])
sketch22.MapMode = "FlatFace"
sketch22.AttachmentOffset = App.Placement(V(0, 0, 6 * 25.4), App.Rotation())
add_polygon(sketch22, [(-2747, -1813), (-2781, -1829), (-2395, -2657), (-2360, -2641)])
sketch22.addConstraint(Sketcher.Constraint("Perpendicular", 0, 1))
sketch22.addConstraint(Sketcher.Constraint("Perpendicular", 1, 2))
sketch22.addConstraint(Sketcher.Constraint("Perpendicular", 2, 3))
sketch22.addConstraint(Sketcher.Constraint("Distance", 1, Q("36 in")))
sketch22.addConstraint(Sketcher.Constraint("DistanceY", 0, 2, -1, 1, Q("72 in")))
sketch22.addConstraint(Sketcher.Constraint("Distance", 0, Q("1.5 in")))
sketch22.addConstraint(Sketcher.Constraint("DistanceX", 0, 2, -1, 1, Q("109.5 in")))
sketch22.addConstraint(Sketcher.Constraint("DistanceY", 1, 2, -1, 1, Q("2657.490401 mm")))
pad17 = body15.newObject("PartDesign::Pad", "Pad016")
pad17.Profile = sketch22
pad17.Length = Q("82 in")
body16 = doc.addObject("PartDesign::Body", "Body015")

sketch23 = body16.newObject("Sketcher::SketchObject", "Sketch022")
sketch23.AttachmentSupport = (doc.getObject("XY_Plane015"), [""])
sketch23.MapMode = "FlatFace"
sketch23.AttachmentOffset = App.Placement(V(0, 0, 6 * 25.4), App.Rotation())
add_polygon(sketch23, [(-1339, -2657), (-952, -1829), (-987, -1813), (-1374, -2641)])
sketch23.addConstraint(Sketcher.Constraint("Perpendicular", 0, 1))
sketch23.addConstraint(Sketcher.Constraint("Perpendicular", 1, 2))
sketch23.addConstraint(Sketcher.Constraint("Perpendicular", 2, 3))
sketch23.addConstraint(Sketcher.Constraint("Distance", 0, Q("36 in")))
sketch23.addConstraint(Sketcher.Constraint("DistanceY", 0, 2, -1, 1, Q("72 in")))
sketch23.addConstraint(Sketcher.Constraint("Distance", 1, Q("1.5 in")))
sketch23.addConstraint(Sketcher.Constraint("DistanceX", 0, 2, -1, 1, Q("37.5 in")))
sketch23.addConstraint(Sketcher.Constraint("DistanceY", 1, 2, -1, 1, Q("1812.694899 mm")))
pad18 = body16.newObject("PartDesign::Pad", "Pad017")
pad18.Profile = sketch23
pad18.Length = Q("82 in")
body17 = doc.addObject("PartDesign::Body", "Body016")

sketch24 = body17.newObject("Sketcher::SketchObject", "Sketch023")
sketch24.AttachmentSupport = (doc.getObject("XY_Plane016"), [""])
sketch24.MapMode = "FlatFace"
sketch24.AttachmentOffset = App.Placement(V(0, 0, 6 * 25.4), App.Rotation())
add_polygon(sketch24, [(2565, 1740), (2565, 826), (2654, 826), (2654, 1740)])
sketch24.addConstraint(Sketcher.Constraint("Vertical", 0))
sketch24.addConstraint(Sketcher.Constraint("Horizontal", 1))
sketch24.addConstraint(Sketcher.Constraint("Vertical", 2))
sketch24.addConstraint(Sketcher.Constraint("Horizontal", 3))
sketch24.addConstraint(Sketcher.Constraint("DistanceY", 0, 2, 0, 1, Q("36 in")))
sketch24.addConstraint(Sketcher.Constraint("DistanceX", 1, 1, 1, 2, Q("3.5 in")))
sketch24.addConstraint(Sketcher.Constraint("DistanceX", -1, 1, 0, 2, Q("101 in")))
sketch24.addConstraint(Sketcher.Constraint("DistanceY", -1, 1, 0, 2, Q("32.5 in")))
pad19 = body17.newObject("PartDesign::Pad", "Pad018")
pad19.Profile = sketch24
pad19.Length = Q("97 in")
body18 = doc.addObject("PartDesign::Body", "Body017")

sketch25 = body18.newObject("Sketcher::SketchObject", "Sketch024")
sketch25.AttachmentSupport = (doc.getObject("XY_Plane017"), [""])
sketch25.MapMode = "FlatFace"
sketch25.AttachmentOffset = App.Placement(V(0, 0, 26 * 25.4), App.Rotation())
add_polygon(sketch25, [(1232, -64), (1232, -1283), (1689, -1283), (1689, -64)])
sketch25.addConstraint(Sketcher.Constraint("Vertical", 0))
sketch25.addConstraint(Sketcher.Constraint("Horizontal", 1))
sketch25.addConstraint(Sketcher.Constraint("Vertical", 2))
sketch25.addConstraint(Sketcher.Constraint("Horizontal", 3))
sketch25.addConstraint(Sketcher.Constraint("DistanceX", 1, 1, 1, 2, Q("18 in")))
sketch25.addConstraint(Sketcher.Constraint("DistanceY", 0, 2, 0, 1, Q("48 in")))
sketch25.addConstraint(Sketcher.Constraint("DistanceX", -1, 1, 0, 2, Q("48.5 in")))
sketch25.addConstraint(Sketcher.Constraint("DistanceY", 0, 2, -1, 1, Q("50.5 in")))
pad20 = body18.newObject("PartDesign::Pad", "Pad019")
pad20.Profile = sketch25
pad20.Length = Q("3 in")
pad20.Reversed = True
body19 = doc.addObject("PartDesign::Body", "Body018")

sketch26 = body19.newObject("Sketcher::SketchObject", "Sketch025")
sketch26.AttachmentSupport = (doc.getObject("XZ_Plane018"), [""])
sketch26.MapMode = "FlatFace"
sketch26.AttachmentOffset = App.Placement(V(0, 0, -68.5 * 25.4), App.Rotation())
add_polygon(sketch26, [(1232, 660), (1232, 584), (2565, 584), (2565, 660)])
sketch26.addConstraint(Sketcher.Constraint("Vertical", 0))
sketch26.addConstraint(Sketcher.Constraint("Horizontal", 1))
sketch26.addConstraint(Sketcher.Constraint("Vertical", 2))
sketch26.addConstraint(Sketcher.Constraint("Horizontal", 3))
sketch26.addConstraint(Sketcher.Constraint("DistanceY", 0, 2, 0, 1, Q("3 in")))
sketch26.addConstraint(Sketcher.Constraint("DistanceX", 1, 1, 1, 2, Q("52.5 in")))
sketch26.addConstraint(Sketcher.Constraint("DistanceY", -1, 1, 0, 2, Q("23 in")))
sketch26.addConstraint(Sketcher.Constraint("DistanceX", -1, 1, 1, 2, Q("101 in")))
pad21 = body19.newObject("PartDesign::Pad", "Pad020")
pad21.Profile = sketch26
pad21.Length = Q("18 in")

doc.recompute()
